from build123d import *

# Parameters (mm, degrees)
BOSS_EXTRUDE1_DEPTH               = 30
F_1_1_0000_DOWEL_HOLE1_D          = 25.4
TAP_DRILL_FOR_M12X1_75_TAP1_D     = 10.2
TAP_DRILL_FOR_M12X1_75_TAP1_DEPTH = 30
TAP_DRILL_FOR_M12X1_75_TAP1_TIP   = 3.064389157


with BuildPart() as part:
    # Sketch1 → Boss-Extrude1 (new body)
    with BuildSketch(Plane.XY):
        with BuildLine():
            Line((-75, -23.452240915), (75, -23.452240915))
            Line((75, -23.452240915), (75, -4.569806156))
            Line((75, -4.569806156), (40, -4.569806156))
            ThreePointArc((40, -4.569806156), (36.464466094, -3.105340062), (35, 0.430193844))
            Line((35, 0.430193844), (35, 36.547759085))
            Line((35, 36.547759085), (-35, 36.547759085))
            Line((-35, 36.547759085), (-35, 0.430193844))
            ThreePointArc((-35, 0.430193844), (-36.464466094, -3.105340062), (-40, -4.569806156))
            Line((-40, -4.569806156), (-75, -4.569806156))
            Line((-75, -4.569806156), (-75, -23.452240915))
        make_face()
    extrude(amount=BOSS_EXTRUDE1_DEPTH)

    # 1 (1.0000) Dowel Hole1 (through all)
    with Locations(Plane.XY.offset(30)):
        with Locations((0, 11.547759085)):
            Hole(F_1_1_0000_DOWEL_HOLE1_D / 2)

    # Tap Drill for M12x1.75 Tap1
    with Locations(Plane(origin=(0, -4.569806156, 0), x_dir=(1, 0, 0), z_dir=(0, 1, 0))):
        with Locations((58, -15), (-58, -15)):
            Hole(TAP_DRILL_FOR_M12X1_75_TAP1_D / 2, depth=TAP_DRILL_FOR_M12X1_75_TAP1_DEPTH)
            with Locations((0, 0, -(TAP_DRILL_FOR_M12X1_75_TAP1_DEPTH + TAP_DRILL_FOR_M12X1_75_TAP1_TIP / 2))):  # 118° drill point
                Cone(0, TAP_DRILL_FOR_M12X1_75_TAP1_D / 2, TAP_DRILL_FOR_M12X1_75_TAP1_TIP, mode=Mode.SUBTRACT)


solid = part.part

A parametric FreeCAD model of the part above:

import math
import FreeCAD as App
import Part
import Sketcher
Q = App.Units.Quantity

doc = App.newDocument("Part")
body = doc.addObject("PartDesign::Body", "Body")

# Sketch on XY plane
sketch1 = body.newObject("Sketcher::SketchObject", "Sketch")
sketch1.AttachmentSupport = (doc.getObject("XY_Plane"), [""])
sketch1.MapMode = "FlatFace"
sketch1.addGeometry([
    Part.LineSegment(App.Vector(-75, -23, 0), App.Vector(75, -23, 0)),  # 0
    Part.LineSegment(App.Vector(75, -23, 0), App.Vector(75, -5, 0)),  # 1
    Part.LineSegment(App.Vector(75, -5, 0), App.Vector(40, -5, 0)),  # 2
    Part.ArcOfCircle(Part.Circle(App.Vector(40, 0, 0), App.Vector(0, 0, 1), 5), math.radians(180), math.radians(270)),  # 3
    Part.LineSegment(App.Vector(35, 0, 0), App.Vector(35, 37, 0)),  # 4
    Part.LineSegment(App.Vector(35, 37, 0), App.Vector(-35, 37, 0)),  # 5
    Part.LineSegment(App.Vector(-35, 37, 0), App.Vector(-35, 0, 0)),  # 6
    Part.ArcOfCircle(Part.Circle(App.Vector(-40, 0, 0), App.Vector(0, 0, 1), 5), math.radians(-90), math.radians(0)),  # 7
    Part.LineSegment(App.Vector(-40, -5, 0), App.Vector(-75, -5, 0)),  # 8
    Part.LineSegment(App.Vector(-75, -5, 0), App.Vector(-75, -23, 0)),  # 9
], False)
sketch1.addConstraint([
    Sketcher.Constraint("Coincident", 0, 2, 1, 1),
    Sketcher.Constraint("Coincident", 1, 2, 2, 1),
    Sketcher.Constraint("Tangent", 2, 2, 3, 2),
    Sketcher.Constraint("Tangent", 3, 1, 4, 1),
    Sketcher.Constraint("Coincident", 4, 2, 5, 1),
    Sketcher.Constraint("Coincident", 5, 2, 6, 1),
    Sketcher.Constraint("Tangent", 6, 2, 7, 2),
    Sketcher.Constraint("Tangent", 7, 1, 8, 1),
    Sketcher.Constraint("Coincident", 8, 2, 9, 1),
    Sketcher.Constraint("Coincident", 9, 2, 0, 1),
    Sketcher.Constraint("Horizontal", 0),
    Sketcher.Constraint("Vertical", 1),
    Sketcher.Constraint("Horizontal", 2),
    Sketcher.Constraint("Vertical", 4),
    Sketcher.Constraint("Horizontal", 5),
    Sketcher.Constraint("Vertical", 6),
    Sketcher.Constraint("Horizontal", 8),
    Sketcher.Constraint("Vertical", 9),
    Sketcher.Constraint("Equal", 3, 7),
    Sketcher.Constraint("Symmetric", 3, 3, 7, 3, -2),
    Sketcher.Constraint("Equal", 2, 8),
    Sketcher.Constraint("Radius", 3, Q("5 mm")),
    Sketcher.Constraint("DistanceX", 0, 1, 0, 2, Q("150 mm")),
    Sketcher.Constraint("DistanceX", 2, 2, 2, 1, Q("35 mm")),
    Sketcher.Constraint("DistanceY", 0, 2, 4, 2, Q("60 mm")),
    Sketcher.Constraint("DistanceY", 1, 1, 1, 2, Q("18.882435 mm")),
    Sketcher.Constraint("DistanceY", 0, 2, -1, 1, Q("23.452241 mm")),
])
pad1 = body.newObject("PartDesign::Pad", "Pad")
pad1.Profile = sketch1
pad1.Length = 30

# Sketch on XY plane
sketch2 = body.newObject("Sketcher::SketchObject", "Sketch001")
sketch2.AttachmentSupport = (doc.getObject("XY_Plane"), [""])
sketch2.MapMode = "FlatFace"
sketch2.AttachmentOffset = App.Placement(App.Vector(0, 0, 30), App.Rotation())
sketch2.addGeometry(Part.Circle(App.Vector(0, 12, 0), App.Vector(0, 0, 1), 13), False)
sketch2.addConstraint([
    Sketcher.Constraint("PointOnObject", 0, 3, -2),
    Sketcher.Constraint("Diameter", 0, Q("25.4 mm")),
    Sketcher.Constraint("DistanceY", -1, 1, 0, 3, Q("11.547759 mm")),
])
doc.recompute()
hole = body.newObject("PartDesign::Hole", "Hole")
hole.Profile = sketch2
hole.ThreadType = "None"
hole.Diameter = 25.4
hole.DepthType = "ThroughAll"

# Sketch on XZ plane
sketch3 = body.newObject("Sketcher::SketchObject", "Sketch002")
sketch3.AttachmentSupport = (doc.getObject("XZ_Plane"), [""])
sketch3.MapMode = "FlatFace"
sketch3.AttachmentOffset = App.Placement(App.Vector(0, 0, 4.569806), App.Rotation())
sketch3.addGeometry([
    Part.Circle(App.Vector(58, 15, 0), App.Vector(0, 0, 1), 5),
    Part.Circle(App.Vector(-58, 15, 0), App.Vector(0, 0, 1), 5),
], False)
sketch3.addConstraint([
    Sketcher.Constraint("Equal", 0, 1),
    Sketcher.Constraint("Symmetric", 0, 3, 1, 3, -2),
    Sketcher.Constraint("Diameter", 0, Q("10.2 mm")),
    Sketcher.Constraint("DistanceX", -1, 1, 0, 3, Q("58 mm")),
    Sketcher.Constraint("DistanceY", -1, 1, 0, 3, Q("15 mm")),
])
doc.recompute()
hole2 = body.newObject("PartDesign::Hole", "Hole001")
hole2.Profile = sketch3
hole2.ThreadType = "None"
hole2.Diameter = 10.2
hole2.DepthType = "Dimension"
hole2.Depth = 30
hole2.DrillPoint = "Angled"
hole2.DrillPointAngle = 118
hole2.Reversed = True

doc.recompute()
